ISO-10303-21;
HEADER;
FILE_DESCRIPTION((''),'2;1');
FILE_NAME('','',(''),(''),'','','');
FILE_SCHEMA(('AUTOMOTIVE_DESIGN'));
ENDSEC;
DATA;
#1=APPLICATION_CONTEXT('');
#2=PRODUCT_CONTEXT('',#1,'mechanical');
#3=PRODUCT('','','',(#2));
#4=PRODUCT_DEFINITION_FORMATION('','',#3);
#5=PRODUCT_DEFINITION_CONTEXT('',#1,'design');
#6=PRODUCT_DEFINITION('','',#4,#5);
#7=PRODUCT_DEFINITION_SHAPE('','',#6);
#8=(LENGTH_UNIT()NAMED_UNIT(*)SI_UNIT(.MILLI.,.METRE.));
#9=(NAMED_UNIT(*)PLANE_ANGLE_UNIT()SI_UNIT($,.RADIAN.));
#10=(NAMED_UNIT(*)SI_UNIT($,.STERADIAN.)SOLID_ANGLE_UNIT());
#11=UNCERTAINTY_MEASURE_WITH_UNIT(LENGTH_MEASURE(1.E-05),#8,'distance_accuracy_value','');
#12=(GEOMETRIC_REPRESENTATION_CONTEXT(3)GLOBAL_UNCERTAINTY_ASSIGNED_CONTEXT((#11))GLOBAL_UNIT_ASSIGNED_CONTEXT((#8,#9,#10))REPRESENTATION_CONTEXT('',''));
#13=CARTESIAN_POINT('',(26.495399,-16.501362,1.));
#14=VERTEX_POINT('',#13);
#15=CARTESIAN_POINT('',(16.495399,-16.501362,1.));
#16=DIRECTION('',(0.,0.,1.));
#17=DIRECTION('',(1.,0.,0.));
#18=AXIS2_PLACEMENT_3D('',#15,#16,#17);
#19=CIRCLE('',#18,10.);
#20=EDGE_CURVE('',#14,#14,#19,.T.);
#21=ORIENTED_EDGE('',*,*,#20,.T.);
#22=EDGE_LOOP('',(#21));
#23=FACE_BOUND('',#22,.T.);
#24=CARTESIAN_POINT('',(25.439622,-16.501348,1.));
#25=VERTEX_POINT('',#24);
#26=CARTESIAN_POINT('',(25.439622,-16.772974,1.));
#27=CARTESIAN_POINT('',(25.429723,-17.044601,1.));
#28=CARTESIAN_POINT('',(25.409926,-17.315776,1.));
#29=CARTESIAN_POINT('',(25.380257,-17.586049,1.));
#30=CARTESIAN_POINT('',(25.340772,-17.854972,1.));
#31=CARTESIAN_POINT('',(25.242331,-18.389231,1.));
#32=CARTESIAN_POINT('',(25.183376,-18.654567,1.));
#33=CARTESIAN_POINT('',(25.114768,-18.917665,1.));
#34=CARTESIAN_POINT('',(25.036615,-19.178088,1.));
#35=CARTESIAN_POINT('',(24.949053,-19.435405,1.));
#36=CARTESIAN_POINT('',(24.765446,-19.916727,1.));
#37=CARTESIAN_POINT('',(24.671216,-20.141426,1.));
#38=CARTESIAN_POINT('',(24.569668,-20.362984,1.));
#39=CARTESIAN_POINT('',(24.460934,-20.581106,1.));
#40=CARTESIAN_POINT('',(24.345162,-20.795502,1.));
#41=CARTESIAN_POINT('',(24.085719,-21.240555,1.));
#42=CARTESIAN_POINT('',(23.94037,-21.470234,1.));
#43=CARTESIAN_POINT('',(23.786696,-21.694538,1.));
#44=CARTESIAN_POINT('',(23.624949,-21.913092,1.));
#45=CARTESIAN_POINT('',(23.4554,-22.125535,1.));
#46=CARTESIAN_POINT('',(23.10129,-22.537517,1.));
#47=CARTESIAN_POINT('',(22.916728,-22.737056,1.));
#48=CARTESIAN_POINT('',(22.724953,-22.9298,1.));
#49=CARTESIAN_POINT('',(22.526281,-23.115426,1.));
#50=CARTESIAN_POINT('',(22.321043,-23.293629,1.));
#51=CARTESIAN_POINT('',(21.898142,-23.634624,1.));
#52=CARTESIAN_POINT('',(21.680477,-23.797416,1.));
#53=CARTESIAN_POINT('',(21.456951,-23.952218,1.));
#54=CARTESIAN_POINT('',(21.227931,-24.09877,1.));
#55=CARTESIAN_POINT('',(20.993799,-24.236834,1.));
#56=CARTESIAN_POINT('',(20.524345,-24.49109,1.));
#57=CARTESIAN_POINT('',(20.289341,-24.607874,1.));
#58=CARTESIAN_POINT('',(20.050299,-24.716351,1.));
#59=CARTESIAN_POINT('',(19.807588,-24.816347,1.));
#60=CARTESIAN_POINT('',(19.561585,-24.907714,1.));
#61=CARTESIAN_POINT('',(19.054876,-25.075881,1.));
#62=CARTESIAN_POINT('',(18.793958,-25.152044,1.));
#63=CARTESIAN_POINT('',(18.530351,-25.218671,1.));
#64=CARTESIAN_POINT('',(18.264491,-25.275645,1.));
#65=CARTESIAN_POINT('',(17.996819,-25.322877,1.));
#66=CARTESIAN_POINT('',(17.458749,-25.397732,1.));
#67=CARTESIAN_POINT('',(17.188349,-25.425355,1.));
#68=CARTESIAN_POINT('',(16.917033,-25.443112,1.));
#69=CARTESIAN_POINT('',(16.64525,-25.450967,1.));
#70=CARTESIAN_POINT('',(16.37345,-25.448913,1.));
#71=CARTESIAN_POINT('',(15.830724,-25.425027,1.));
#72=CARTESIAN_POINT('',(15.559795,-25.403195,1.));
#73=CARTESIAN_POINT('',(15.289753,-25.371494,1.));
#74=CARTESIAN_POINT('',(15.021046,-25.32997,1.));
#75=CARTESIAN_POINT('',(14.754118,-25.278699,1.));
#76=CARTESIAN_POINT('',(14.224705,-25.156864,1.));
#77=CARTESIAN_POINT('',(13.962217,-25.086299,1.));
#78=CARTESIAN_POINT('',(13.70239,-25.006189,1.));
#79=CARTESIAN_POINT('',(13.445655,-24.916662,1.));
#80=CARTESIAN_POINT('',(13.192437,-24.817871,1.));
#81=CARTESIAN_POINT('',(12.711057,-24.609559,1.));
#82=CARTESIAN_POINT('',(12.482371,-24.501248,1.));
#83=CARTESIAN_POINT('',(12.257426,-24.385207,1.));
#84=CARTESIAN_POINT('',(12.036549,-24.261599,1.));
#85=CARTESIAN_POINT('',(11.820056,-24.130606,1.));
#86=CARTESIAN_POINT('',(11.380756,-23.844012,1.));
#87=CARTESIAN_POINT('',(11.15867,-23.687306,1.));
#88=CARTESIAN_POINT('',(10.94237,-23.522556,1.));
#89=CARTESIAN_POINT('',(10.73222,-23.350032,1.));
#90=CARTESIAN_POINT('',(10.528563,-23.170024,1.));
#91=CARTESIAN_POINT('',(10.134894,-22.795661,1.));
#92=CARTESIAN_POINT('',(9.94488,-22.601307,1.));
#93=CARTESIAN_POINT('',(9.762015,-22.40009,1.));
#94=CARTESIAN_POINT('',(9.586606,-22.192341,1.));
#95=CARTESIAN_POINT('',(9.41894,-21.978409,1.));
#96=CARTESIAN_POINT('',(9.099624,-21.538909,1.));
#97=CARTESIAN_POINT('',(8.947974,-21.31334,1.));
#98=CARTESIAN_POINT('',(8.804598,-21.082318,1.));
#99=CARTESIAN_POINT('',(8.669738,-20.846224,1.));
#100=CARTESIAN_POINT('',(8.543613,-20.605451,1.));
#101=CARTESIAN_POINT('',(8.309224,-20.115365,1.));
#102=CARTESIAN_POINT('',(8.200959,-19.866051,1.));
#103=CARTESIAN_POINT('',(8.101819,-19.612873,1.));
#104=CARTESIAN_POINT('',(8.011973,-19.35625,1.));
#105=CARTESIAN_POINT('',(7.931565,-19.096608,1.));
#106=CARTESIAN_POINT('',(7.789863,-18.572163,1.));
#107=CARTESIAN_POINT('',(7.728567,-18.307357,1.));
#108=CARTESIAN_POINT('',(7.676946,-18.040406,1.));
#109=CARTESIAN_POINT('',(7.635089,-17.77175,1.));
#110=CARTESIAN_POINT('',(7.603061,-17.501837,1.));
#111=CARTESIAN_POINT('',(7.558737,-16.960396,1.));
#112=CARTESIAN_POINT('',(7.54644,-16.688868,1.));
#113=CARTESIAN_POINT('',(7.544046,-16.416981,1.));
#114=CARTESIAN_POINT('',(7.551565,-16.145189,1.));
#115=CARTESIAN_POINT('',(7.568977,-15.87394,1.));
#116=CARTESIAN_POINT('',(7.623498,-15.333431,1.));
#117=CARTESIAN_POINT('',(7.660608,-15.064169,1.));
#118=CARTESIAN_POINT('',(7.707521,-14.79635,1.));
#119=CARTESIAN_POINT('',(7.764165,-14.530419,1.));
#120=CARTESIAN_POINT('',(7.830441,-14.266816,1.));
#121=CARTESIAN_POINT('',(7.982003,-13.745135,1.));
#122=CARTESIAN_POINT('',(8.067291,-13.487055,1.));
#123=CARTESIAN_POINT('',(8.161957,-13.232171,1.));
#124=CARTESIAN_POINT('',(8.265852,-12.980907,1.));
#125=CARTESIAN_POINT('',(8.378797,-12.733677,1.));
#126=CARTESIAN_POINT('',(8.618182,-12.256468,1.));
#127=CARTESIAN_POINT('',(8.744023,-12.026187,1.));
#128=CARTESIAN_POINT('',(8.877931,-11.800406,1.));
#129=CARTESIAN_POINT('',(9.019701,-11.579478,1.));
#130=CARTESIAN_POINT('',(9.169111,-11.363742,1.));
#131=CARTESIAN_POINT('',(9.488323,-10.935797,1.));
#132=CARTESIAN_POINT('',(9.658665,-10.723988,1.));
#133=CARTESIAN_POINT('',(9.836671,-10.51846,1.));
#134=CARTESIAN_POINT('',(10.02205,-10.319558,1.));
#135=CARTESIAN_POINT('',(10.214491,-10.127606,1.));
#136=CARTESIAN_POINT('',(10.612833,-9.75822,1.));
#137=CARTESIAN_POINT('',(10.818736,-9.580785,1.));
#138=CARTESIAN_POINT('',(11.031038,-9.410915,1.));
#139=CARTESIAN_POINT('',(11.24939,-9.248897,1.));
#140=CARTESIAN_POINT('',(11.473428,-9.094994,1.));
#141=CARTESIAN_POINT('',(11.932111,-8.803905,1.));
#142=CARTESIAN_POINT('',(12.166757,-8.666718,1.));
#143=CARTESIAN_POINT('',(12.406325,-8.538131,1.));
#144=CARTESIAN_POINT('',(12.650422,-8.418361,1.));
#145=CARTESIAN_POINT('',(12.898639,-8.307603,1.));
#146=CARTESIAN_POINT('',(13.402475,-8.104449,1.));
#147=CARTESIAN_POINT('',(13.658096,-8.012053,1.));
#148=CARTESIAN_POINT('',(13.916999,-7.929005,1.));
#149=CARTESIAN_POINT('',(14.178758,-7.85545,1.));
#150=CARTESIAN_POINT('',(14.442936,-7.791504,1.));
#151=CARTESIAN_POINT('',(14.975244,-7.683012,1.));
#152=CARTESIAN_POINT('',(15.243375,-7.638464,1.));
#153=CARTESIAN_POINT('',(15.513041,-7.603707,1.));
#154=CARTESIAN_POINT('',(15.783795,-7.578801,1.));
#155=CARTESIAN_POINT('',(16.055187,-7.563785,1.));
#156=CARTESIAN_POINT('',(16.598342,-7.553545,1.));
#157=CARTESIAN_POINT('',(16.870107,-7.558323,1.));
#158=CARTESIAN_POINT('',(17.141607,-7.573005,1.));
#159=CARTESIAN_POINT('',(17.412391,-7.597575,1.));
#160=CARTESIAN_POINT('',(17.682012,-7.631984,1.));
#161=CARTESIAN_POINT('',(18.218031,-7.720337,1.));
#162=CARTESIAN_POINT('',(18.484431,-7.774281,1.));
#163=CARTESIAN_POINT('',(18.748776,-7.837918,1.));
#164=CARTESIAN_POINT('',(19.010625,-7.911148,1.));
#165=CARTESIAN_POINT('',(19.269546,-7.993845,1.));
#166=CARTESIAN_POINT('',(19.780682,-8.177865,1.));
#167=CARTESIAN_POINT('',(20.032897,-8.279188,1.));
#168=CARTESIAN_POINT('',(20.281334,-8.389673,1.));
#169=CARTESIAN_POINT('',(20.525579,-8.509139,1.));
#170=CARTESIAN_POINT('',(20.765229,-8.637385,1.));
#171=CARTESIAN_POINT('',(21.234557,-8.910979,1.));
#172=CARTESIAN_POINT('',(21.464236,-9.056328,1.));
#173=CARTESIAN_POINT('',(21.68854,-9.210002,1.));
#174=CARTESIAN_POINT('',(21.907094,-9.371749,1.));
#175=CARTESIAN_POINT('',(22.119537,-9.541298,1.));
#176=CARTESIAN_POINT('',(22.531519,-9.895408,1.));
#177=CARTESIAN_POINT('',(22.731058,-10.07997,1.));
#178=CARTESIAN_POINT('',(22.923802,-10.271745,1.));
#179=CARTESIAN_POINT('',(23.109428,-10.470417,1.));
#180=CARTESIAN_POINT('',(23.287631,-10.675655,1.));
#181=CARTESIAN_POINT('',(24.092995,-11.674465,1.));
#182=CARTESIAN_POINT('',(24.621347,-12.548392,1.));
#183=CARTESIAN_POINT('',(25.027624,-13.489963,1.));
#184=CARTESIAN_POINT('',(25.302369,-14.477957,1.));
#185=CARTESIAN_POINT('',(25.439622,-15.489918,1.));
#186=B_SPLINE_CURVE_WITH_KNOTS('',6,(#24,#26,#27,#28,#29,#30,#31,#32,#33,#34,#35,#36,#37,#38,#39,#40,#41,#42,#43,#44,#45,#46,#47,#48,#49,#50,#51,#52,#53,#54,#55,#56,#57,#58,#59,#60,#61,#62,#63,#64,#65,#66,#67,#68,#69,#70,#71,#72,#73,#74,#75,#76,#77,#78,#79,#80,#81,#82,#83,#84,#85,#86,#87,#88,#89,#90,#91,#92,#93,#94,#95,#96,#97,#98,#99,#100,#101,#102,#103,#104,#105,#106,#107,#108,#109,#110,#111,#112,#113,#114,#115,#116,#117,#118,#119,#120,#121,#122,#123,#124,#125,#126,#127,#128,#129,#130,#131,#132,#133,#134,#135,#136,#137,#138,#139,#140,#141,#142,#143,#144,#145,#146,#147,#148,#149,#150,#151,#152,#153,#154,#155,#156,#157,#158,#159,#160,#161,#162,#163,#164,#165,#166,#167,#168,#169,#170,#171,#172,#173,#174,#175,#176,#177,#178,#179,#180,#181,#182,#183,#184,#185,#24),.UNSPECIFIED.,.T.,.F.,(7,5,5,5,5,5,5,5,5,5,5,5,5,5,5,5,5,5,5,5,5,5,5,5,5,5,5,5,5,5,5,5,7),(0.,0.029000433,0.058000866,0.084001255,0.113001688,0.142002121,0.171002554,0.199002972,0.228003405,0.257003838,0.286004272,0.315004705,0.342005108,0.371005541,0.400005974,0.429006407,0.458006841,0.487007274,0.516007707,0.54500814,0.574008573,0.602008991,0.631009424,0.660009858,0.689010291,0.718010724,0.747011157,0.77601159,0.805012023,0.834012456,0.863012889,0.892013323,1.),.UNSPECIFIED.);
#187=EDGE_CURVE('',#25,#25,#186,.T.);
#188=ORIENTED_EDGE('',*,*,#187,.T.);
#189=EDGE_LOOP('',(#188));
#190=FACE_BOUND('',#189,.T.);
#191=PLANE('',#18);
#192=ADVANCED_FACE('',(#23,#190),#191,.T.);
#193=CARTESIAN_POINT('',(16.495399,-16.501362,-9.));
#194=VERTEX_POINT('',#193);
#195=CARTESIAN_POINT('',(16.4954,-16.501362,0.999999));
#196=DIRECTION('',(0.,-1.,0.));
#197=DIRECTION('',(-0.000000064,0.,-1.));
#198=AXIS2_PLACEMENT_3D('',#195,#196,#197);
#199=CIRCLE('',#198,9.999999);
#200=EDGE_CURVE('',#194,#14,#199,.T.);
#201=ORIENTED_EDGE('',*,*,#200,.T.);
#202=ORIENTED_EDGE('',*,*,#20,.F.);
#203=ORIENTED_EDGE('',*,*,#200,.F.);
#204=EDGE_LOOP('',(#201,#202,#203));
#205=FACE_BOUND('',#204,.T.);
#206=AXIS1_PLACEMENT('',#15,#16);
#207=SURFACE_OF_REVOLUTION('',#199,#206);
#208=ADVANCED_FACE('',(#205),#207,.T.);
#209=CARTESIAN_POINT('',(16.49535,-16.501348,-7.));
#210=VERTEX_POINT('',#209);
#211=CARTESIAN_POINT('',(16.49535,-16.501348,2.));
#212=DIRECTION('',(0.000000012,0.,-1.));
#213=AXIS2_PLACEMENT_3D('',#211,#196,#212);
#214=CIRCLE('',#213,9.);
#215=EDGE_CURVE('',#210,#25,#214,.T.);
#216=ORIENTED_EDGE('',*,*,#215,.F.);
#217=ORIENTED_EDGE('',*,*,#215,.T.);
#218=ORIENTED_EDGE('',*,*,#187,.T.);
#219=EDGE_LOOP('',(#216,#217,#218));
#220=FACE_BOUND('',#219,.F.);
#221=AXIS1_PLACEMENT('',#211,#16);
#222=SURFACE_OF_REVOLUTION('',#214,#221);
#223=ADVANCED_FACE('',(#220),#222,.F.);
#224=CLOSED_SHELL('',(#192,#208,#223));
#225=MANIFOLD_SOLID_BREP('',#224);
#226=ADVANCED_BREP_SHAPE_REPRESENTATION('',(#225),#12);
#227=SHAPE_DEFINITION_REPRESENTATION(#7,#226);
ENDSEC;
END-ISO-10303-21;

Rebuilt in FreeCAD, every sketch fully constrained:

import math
import FreeCAD as App
import Part
import Sketcher

V = App.Vector

doc = App.newDocument("Part")
body = doc.addObject("PartDesign::Body", "Body")

# Sketch on XZ plane
sketch1 = doc.addObject("Sketcher::SketchObject", "Sketch")
body.addObject(sketch1)
sketch1.AttachmentSupport = (doc.XZ_Plane, [""])
sketch1.MapMode = "FlatFace"
sketch1.AttachmentOffset = App.Placement(V(0, 0, 16.9323), App.Rotation())
sketch1.addGeometry([
    Part.ArcOfCircle(Part.Circle(V(17, 1, 0), V(0, 0, 1), 9), math.radians(-90), math.radians(0)),
    Part.LineSegment(V(26, 1, 0), V(17, 1, 0)),
    Part.LineSegment(V(17, 1, 0), V(17, -8, 0)),
], False)
sketch1.addGeometry(Part.LineSegment(V(17, -8, 0), V(17, 1, 0)), True)  # axis
sketch1.addConstraint([
    Sketcher.Constraint("Coincident", 0, 2, 1, 1),
    Sketcher.Constraint("Coincident", 1, 2, 2, 1),
    Sketcher.Constraint("Coincident", 2, 2, 0, 1),
    Sketcher.Constraint("Horizontal", 1),
    Sketcher.Constraint("Vertical", 2),
    Sketcher.Constraint("Vertical", 3),
    Sketcher.Constraint("Coincident", 1, 2, 0, 3),
    Sketcher.Constraint("Coincident", 3, 1, 2, 2),
    Sketcher.Constraint("Horizontal", 0, 2, 3, 2),
    Sketcher.Constraint("Radius", 0, 9.0),
    Sketcher.Constraint("DistanceY", -1, 1, 0, 3, 1.0),
    Sketcher.Constraint("DistanceX", -1, 1, 0, 3, 16.5428),
])
revolution = doc.addObject("PartDesign::Revolution", "Revolution")
body.addObject(revolution)
revolution.Profile = sketch1
revolution.ReferenceAxis = (sketch1, ["Axis0"])
revolution.Angle = 360
body2 = doc.addObject("PartDesign::Body", "Body001")

# Sketch on XZ plane
sketch2 = doc.addObject("Sketcher::SketchObject", "Sketch001")
body2.addObject(sketch2)
sketch2.AttachmentSupport = (doc.getObject("XZ_Plane001"), [""])
sketch2.MapMode = "FlatFace"
sketch2.AttachmentOffset = App.Placement(V(0, 0, 16.932314), App.Rotation())
sketch2.addGeometry([
    Part.ArcOfCircle(Part.Circle(V(17, 0, 0), V(0, 0, 1), 10), math.radians(-90), math.radians(0)),
    Part.LineSegment(V(27, 0, 0), V(17, 0, 0)),
    Part.LineSegment(V(17, 0, 0), V(17, -10, 0)),
], False)
sketch2.addGeometry(Part.LineSegment(V(17, -10, 0), V(17, 0, 0)), True)  # axis
sketch2.addConstraint([
    Sketcher.Constraint("Coincident", 0, 2, 1, 1),
    Sketcher.Constraint("Coincident", 1, 2, 2, 1),
    Sketcher.Constraint("Coincident", 2, 2, 0, 1),
    Sketcher.Constraint("Horizontal", 1),
    Sketcher.Constraint("Vertical", 2),
    Sketcher.Constraint("Vertical", 3),
    Sketcher.Constraint("Coincident", 1, 2, 0, 3),
    Sketcher.Constraint("Coincident", 3, 1, 2, 2),
    Sketcher.Constraint("PointOnObject", 0, 3, -1),
    Sketcher.Constraint("PointOnObject", 3, 2, -1),
    Sketcher.Constraint("Radius", 0, 9.999999),
    Sketcher.Constraint("DistanceX", -1, 1, 0, 3, 16.54285),
])
revolution2 = doc.addObject("PartDesign::Revolution", "Revolution001")
body2.addObject(revolution2)
revolution2.Profile = sketch2
revolution2.ReferenceAxis = (sketch2, ["Axis0"])
revolution2.Angle = 360
doc.recompute()

boolean = doc.addObject("PartDesign::Boolean", "Boolean")
body2.addObject(boolean)
boolean.Type = "Cut"
boolean.addObjects([body])
body3 = doc.addObject("PartDesign::Body", "Body002")
doc.recompute()

body2.Placement = App.Placement(V(-0.04745, 0.430952, 1), App.Rotation(V(0, 0, 1), 0))
boolean2 = doc.addObject("PartDesign::Boolean", "Boolean001")
body3.addObject(boolean2)
boolean2.Type = "Fuse"
boolean2.addObjects([body2])

doc.recompute()
